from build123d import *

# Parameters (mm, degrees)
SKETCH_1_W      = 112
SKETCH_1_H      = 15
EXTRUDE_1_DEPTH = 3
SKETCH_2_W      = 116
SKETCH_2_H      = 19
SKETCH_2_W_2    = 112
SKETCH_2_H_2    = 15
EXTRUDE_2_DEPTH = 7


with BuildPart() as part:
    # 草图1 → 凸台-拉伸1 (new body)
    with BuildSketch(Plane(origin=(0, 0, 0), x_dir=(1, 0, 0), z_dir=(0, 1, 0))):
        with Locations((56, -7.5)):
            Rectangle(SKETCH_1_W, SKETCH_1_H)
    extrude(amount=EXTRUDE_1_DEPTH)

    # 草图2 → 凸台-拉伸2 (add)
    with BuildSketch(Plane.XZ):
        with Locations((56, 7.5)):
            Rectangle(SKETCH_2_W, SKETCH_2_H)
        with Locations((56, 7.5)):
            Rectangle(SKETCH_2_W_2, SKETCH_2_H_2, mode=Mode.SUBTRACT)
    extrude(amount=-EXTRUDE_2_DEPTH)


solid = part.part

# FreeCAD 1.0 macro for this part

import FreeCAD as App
import Part
import Sketcher
from FreeCAD import Vector

doc = App.newDocument("Part")
body = doc.addObject("PartDesign::Body", "Body")

# Sketch on XZ plane
sketch1 = body.newObject("Sketcher::SketchObject", "Sketch")
sketch1.AttachmentSupport = (doc.getObject("XZ_Plane"), [""])
sketch1.MapMode = "FlatFace"
sketch1.addGeometry(Part.LineSegment(Vector(0, 0, 0), Vector(0, 15, 0)), False)
sketch1.addGeometry(Part.LineSegment(Vector(0, 15, 0), Vector(112, 15, 0)), False)
sketch1.addGeometry(Part.LineSegment(Vector(112, 15, 0), Vector(112, 0, 0)), False)
sketch1.addGeometry(Part.LineSegment(Vector(112, 0, 0), Vector(0, 0, 0)), False)
sketch1.addConstraint(Sketcher.Constraint("Coincident", 0, 2, 1, 1))
sketch1.addConstraint(Sketcher.Constraint("Coincident", 1, 2, 2, 1))
sketch1.addConstraint(Sketcher.Constraint("Coincident", 2, 2, 3, 1))
sketch1.addConstraint(Sketcher.Constraint("Coincident", 3, 2, 0, 1))
sketch1.addConstraint(Sketcher.Constraint("Vertical", 0))
sketch1.addConstraint(Sketcher.Constraint("Horizontal", 1))
sketch1.addConstraint(Sketcher.Constraint("Vertical", 2))
sketch1.addConstraint(Sketcher.Constraint("Horizontal", 3))
sketch1.addConstraint(Sketcher.Constraint("Coincident", 3, 2, -1, 1))
sketch1.addConstraint(Sketcher.Constraint("DistanceX", 1, 1, 1, 2, 112.0))
sketch1.addConstraint(Sketcher.Constraint("DistanceY", 0, 1, 0, 2, 15.0))
pad1 = body.newObject("PartDesign::Pad", "Pad")
pad1.Profile = sketch1
pad1.Length = 3
pad1.Reversed = True

# Sketch on XZ plane
sketch2 = body.newObject("Sketcher::SketchObject", "Sketch001")
sketch2.AttachmentSupport = (doc.getObject("XZ_Plane"), [""])
sketch2.MapMode = "FlatFace"
sketch2.addGeometry(Part.LineSegment(Vector(-2, 17, 0), Vector(-2, -2, 0)), False)
sketch2.addGeometry(Part.LineSegment(Vector(-2, -2, 0), Vector(114, -2, 0)), False)
sketch2.addGeometry(Part.LineSegment(Vector(114, -2, 0), Vector(114, 17, 0)), False)
sketch2.addGeometry(Part.LineSegment(Vector(114, 17, 0), Vector(-2, 17, 0)), False)
sketch2.addGeometry(Part.LineSegment(Vector(112, 0, 0), Vector(0, 0, 0)), False)
sketch2.addGeometry(Part.LineSegment(Vector(0, 0, 0), Vector(0, 15, 0)), False)
sketch2.addGeometry(Part.LineSegment(Vector(0, 15, 0), Vector(112, 15, 0)), False)
sketch2.addGeometry(Part.LineSegment(Vector(112, 15, 0), Vector(112, 0, 0)), False)
sketch2.addConstraint(Sketcher.Constraint("Coincident", 0, 2, 1, 1))
sketch2.addConstraint(Sketcher.Constraint("Coincident", 1, 2, 2, 1))
sketch2.addConstraint(Sketcher.Constraint("Coincident", 2, 2, 3, 1))
sketch2.addConstraint(Sketcher.Constraint("Coincident", 3, 2, 0, 1))
sketch2.addConstraint(Sketcher.Constraint("Coincident", 4, 2, 5, 1))
sketch2.addConstraint(Sketcher.Constraint("Coincident", 5, 2, 6, 1))
sketch2.addConstraint(Sketcher.Constraint("Coincident", 6, 2, 7, 1))
sketch2.addConstraint(Sketcher.Constraint("Coincident", 7, 2, 4, 1))
sketch2.addConstraint(Sketcher.Constraint("Vertical", 0))
sketch2.addConstraint(Sketcher.Constraint("Horizontal", 1))
sketch2.addConstraint(Sketcher.Constraint("Vertical", 2))
sketch2.addConstraint(Sketcher.Constraint("Horizontal", 3))
sketch2.addConstraint(Sketcher.Constraint("Horizontal", 4))
sketch2.addConstraint(Sketcher.Constraint("Vertical", 5))
sketch2.addConstraint(Sketcher.Constraint("Horizontal", 6))
sketch2.addConstraint(Sketcher.Constraint("Vertical", 7))
sketch2.addConstraint(Sketcher.Constraint("Coincident", 4, 2, -1, 1))
sketch2.addConstraint(Sketcher.Constraint("DistanceX", 1, 1, 1, 2, 116.0))
sketch2.addConstraint(Sketcher.Constraint("DistanceX", 4, 2, 4, 1, 112.0))
sketch2.addConstraint(Sketcher.Constraint("DistanceY", 0, 2, 0, 1, 19.0))
sketch2.addConstraint(Sketcher.Constraint("DistanceY", 5, 1, 5, 2, 15.0))
sketch2.addConstraint(Sketcher.Constraint("DistanceX", 0, 2, -1, 1, 2.0))
sketch2.addConstraint(Sketcher.Constraint("DistanceY", 0, 2, -1, 1, 2.0))
pad2 = body.newObject("PartDesign::Pad", "Pad001")
pad2.Profile = sketch2
pad2.Length = 7
pad2.Reversed = True

doc.recompute()
